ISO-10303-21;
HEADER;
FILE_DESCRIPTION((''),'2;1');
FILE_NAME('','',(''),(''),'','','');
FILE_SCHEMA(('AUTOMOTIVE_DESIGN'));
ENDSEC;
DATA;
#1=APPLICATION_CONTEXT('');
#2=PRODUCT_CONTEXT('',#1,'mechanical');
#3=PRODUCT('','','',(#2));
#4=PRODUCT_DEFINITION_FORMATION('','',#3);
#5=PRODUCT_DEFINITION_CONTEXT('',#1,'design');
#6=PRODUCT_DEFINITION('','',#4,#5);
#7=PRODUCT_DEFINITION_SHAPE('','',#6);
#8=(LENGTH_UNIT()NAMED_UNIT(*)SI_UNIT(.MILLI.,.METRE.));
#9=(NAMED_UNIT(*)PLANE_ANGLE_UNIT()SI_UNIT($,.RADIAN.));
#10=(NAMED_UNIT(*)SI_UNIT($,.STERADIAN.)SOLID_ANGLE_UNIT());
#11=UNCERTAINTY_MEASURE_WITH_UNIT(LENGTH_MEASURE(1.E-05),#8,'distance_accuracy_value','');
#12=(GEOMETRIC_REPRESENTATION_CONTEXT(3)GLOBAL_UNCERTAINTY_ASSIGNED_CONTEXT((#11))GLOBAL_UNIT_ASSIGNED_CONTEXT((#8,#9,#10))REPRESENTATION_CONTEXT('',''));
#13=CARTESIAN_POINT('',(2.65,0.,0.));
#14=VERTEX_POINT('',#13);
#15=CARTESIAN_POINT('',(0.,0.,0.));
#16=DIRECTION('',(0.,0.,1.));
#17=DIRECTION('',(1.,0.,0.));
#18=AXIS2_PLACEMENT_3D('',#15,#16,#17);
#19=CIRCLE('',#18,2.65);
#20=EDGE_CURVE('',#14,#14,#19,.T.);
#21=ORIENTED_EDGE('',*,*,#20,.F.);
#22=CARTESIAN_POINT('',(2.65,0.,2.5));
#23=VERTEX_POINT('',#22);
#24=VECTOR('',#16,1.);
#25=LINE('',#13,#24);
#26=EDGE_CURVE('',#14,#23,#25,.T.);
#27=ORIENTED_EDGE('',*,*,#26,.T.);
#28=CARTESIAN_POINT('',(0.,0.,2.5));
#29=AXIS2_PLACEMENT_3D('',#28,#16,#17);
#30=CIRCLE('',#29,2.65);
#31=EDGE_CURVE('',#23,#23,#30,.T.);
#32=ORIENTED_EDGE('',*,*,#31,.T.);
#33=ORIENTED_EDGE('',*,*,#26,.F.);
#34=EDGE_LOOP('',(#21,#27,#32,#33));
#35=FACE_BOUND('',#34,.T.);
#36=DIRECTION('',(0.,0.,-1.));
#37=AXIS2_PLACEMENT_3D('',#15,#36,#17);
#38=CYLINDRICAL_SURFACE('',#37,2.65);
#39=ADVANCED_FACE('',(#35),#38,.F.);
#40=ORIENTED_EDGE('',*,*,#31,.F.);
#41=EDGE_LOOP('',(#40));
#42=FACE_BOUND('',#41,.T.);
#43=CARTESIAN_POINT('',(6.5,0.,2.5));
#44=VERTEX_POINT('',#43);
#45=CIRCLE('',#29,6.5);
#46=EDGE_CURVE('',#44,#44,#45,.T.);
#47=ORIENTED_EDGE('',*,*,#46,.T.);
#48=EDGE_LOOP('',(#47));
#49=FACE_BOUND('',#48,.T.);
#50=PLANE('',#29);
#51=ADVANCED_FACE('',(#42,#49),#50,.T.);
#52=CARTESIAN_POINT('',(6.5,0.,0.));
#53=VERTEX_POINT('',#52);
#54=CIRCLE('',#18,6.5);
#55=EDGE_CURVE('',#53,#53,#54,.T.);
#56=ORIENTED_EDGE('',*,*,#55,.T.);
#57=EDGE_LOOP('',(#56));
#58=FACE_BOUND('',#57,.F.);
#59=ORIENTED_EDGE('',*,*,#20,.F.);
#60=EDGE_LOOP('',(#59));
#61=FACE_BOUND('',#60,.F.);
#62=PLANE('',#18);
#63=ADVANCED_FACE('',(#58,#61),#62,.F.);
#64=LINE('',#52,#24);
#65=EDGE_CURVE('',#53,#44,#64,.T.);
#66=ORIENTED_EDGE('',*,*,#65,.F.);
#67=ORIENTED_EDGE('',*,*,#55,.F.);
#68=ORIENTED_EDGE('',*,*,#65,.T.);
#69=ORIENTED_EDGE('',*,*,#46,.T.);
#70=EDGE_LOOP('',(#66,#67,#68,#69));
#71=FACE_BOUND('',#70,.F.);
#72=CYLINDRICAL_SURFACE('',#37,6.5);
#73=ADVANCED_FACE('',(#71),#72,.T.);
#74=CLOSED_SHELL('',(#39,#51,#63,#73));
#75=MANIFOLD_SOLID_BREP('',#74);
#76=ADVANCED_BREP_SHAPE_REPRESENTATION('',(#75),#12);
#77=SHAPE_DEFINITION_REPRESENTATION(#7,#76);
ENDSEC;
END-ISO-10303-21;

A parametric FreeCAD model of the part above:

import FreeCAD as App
import Part
import Sketcher

V = App.Vector

doc = App.newDocument("Part")
body = doc.addObject("PartDesign::Body", "Body")

sketch1 = body.newObject("Sketcher::SketchObject", "Sketch")
sketch1.AttachmentSupport = (doc.getObject("XY_Plane"), [""])
sketch1.MapMode = "FlatFace"
sketch1.addGeometry([
    Part.Circle(V(0, 0, 0), V(0, 0, 1), 6.5),
    Part.Circle(V(0, 0, 0), V(0, 0, 1), 2.6),
], False)
sketch1.addConstraint([
    Sketcher.Constraint("Coincident", 0, 3, -1, 1),
    Sketcher.Constraint("Coincident", 1, 3, -1, 1),
    Sketcher.Constraint("Diameter", 0, 13.0),
    Sketcher.Constraint("Diameter", 1, 5.3),
])
pad1 = body.newObject("PartDesign::Pad", "Pad")
pad1.Profile = sketch1
pad1.Length = 2.5

doc.recompute()
